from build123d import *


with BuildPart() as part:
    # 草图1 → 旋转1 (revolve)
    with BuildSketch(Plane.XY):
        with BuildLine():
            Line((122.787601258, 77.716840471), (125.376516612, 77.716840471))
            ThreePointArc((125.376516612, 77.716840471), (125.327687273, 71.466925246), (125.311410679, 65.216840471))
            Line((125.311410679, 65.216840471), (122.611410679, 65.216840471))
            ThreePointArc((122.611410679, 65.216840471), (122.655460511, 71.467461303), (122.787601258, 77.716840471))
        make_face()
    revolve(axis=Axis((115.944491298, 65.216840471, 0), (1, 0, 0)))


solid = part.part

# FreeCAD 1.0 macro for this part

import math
import FreeCAD as App
import Part
import Sketcher

V = App.Vector

doc = App.newDocument("Part")
params = doc.addObject("Spreadsheet::Sheet", "Params")
for row, (alias, value) in enumerate([
    ("sketch1_width", "2.7 mm"),
    ("revolution_angle", "360 deg"),
], start=1):
    params.set(f"A{row}", alias)
    params.set(f"B{row}", "=" + value)
    params.setAlias(f"B{row}", alias)

body = doc.addObject("PartDesign::Body", "Body")

# Sketch on XY plane
sketch1 = body.newObject("Sketcher::SketchObject", "Sketch")
sketch1.AttachmentSupport = (doc.getObject("XY_Plane"), [""])
sketch1.MapMode = "FlatFace"
sketch1.addGeometry(Part.LineSegment(V(125.4, 77.7, 0), V(122.8, 77.7, 0)), False)
sketch1.addGeometry(Part.ArcOfCircle(Part.Circle(V(566.1, 65.2, 0), V(0, 0, 1), 443.5), math.radians(178.38), math.radians(180)), False)
sketch1.addGeometry(Part.LineSegment(V(122.6, 65.2, 0), V(125.3, 65.2, 0)), False)
sketch1.addGeometry(Part.ArcOfCircle(Part.Circle(V(1325.3, 65.2, 0), V(0, 0, 1), 1200), math.radians(179.4), math.radians(180)), False)
sketch1.addGeometry(Part.LineSegment(V(122.6, 65.2, 0), V(1325.3, 65.2, 0)), True)  # axis
sketch1.addConstraint(Sketcher.Constraint("Coincident", 0, 2, 1, 1))
sketch1.addConstraint(Sketcher.Constraint("Coincident", 1, 2, 2, 1))
sketch1.addConstraint(Sketcher.Constraint("Coincident", 2, 2, 3, 2))
sketch1.addConstraint(Sketcher.Constraint("Coincident", 3, 1, 0, 1))
sketch1.addConstraint(Sketcher.Constraint("Horizontal", 0))
sketch1.addConstraint(Sketcher.Constraint("Horizontal", 2))
sketch1.addConstraint(Sketcher.Constraint("Horizontal", 4))
sketch1.addConstraint(Sketcher.Constraint("Coincident", 4, 1, 1, 2))
sketch1.addConstraint(Sketcher.Constraint("Coincident", 4, 2, 3, 3))
sketch1.addConstraint(Sketcher.Constraint("Horizontal", 1, 3, 3, 3))
sketch1.addConstraint(Sketcher.Constraint("DistanceX", 2, 1, 2, 2, 2.7))
sketch1.addConstraint(Sketcher.Constraint("DistanceY", 1, 3, 0, 2, 12.5))
sketch1.addConstraint(Sketcher.Constraint("Radius", 1, 443.499995))
sketch1.addConstraint(Sketcher.Constraint("Radius", 3, 1200.000024))
sketch1.addConstraint(Sketcher.Constraint("DistanceX", -1, 1, 0, 2, 122.787601))
sketch1.addConstraint(Sketcher.Constraint("DistanceY", -1, 1, 1, 3, 65.216841))
sketch1.setExpression("Constraints[10]", "Params.sketch1_width")
revolution = body.newObject("PartDesign::Revolution", "Revolution")
revolution.Profile = sketch1
revolution.ReferenceAxis = (sketch1, ["Axis0"])
revolution.setExpression("Angle", "Params.revolution_angle")

doc.recompute()
